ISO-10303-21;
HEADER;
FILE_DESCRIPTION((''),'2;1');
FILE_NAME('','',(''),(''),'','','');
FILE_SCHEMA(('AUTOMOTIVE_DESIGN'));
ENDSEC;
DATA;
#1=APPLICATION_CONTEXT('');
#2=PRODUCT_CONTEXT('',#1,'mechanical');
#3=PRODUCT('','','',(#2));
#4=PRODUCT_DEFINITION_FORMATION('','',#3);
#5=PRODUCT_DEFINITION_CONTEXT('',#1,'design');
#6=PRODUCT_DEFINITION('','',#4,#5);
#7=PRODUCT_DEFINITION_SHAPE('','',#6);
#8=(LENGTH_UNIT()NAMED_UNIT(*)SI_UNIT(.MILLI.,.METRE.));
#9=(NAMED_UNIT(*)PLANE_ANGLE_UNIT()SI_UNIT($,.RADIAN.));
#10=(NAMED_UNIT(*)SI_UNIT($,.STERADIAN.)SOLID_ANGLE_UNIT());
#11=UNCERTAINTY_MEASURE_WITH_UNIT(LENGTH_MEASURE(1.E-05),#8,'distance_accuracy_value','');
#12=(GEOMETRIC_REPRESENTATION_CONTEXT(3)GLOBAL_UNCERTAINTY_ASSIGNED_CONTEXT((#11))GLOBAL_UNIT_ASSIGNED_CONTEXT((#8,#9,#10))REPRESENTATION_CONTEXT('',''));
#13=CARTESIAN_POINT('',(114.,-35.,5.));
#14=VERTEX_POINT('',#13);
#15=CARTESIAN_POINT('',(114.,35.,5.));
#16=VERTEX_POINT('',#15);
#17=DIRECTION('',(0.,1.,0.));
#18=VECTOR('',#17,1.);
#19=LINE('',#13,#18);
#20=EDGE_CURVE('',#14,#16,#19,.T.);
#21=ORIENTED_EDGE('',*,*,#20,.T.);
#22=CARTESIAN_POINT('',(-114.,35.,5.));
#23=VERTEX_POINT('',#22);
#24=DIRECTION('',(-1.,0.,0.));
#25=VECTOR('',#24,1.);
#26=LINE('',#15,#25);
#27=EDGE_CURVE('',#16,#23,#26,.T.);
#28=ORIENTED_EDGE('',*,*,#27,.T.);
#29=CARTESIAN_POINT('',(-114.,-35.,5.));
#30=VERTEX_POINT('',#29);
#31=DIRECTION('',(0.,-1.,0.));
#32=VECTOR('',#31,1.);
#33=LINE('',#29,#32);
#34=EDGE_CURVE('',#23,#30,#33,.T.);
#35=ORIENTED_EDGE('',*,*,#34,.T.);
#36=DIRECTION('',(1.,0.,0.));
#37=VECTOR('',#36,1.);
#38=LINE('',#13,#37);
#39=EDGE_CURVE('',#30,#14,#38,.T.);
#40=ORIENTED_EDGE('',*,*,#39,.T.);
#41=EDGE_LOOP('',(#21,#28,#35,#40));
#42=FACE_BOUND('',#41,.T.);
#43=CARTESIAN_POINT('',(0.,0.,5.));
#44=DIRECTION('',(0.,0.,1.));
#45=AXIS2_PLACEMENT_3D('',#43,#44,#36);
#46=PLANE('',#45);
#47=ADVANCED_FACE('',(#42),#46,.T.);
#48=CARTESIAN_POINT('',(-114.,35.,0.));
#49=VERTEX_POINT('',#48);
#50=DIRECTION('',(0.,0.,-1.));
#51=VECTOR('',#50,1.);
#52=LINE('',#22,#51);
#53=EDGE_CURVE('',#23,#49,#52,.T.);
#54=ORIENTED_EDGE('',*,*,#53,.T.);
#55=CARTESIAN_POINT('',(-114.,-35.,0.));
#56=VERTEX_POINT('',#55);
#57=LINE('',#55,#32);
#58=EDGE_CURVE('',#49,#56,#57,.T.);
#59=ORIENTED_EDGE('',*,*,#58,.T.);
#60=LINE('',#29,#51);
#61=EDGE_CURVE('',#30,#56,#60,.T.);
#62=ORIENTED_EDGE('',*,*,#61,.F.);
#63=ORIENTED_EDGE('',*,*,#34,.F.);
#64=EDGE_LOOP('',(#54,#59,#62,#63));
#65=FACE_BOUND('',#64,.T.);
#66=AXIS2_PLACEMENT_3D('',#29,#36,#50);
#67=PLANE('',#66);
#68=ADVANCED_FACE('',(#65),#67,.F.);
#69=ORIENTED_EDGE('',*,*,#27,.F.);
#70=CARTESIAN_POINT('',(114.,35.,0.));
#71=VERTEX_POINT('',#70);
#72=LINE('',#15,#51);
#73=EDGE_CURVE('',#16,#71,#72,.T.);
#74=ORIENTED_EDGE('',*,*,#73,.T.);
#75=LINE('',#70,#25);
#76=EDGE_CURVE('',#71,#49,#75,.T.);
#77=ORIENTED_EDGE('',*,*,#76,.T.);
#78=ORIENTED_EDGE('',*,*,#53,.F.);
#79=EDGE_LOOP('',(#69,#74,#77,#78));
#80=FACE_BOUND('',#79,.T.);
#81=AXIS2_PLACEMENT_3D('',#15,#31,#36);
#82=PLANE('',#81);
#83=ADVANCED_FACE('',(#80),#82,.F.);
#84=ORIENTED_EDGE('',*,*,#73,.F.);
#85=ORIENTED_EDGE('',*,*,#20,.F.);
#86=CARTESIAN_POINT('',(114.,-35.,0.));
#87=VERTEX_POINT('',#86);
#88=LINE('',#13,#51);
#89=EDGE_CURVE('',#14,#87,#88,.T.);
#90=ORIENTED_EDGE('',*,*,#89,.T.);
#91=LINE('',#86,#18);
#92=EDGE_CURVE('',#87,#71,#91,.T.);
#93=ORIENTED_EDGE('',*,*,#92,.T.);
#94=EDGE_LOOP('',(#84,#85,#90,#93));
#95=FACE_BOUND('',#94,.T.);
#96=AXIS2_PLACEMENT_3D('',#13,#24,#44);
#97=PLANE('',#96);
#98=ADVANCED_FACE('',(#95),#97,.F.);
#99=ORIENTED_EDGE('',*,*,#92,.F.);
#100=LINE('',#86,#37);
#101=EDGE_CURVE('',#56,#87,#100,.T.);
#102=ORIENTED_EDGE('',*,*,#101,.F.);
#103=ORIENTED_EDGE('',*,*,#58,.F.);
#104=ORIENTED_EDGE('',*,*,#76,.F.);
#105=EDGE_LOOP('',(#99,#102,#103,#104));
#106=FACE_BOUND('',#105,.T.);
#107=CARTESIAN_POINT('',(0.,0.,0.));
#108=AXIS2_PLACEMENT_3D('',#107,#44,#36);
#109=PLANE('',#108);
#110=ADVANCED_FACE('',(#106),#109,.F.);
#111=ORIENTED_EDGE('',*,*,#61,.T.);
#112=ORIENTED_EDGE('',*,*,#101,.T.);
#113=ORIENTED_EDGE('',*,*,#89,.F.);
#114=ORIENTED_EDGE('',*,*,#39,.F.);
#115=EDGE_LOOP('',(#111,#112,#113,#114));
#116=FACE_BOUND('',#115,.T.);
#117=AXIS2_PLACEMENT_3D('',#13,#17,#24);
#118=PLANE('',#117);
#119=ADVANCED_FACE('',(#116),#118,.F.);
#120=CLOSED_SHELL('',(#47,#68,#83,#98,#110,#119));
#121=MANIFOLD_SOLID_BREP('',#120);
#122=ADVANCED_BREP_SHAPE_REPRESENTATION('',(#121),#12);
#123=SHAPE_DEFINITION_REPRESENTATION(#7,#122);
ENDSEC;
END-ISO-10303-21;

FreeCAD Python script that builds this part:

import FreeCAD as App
import Part
import Sketcher

doc = App.newDocument("Part")
body = doc.addObject("PartDesign::Body", "Body")

# Sketch on XY plane
sketch1 = doc.addObject("Sketcher::SketchObject", "Sketch")
body.addObject(sketch1)
sketch1.AttachmentSupport = (doc.XY_Plane, [""])
sketch1.MapMode = "FlatFace"
sketch1.addGeometry(Part.LineSegment(App.Vector(-114, 35, 0), App.Vector(-114, -35, 0)), False)
sketch1.addGeometry(Part.LineSegment(App.Vector(-114, -35, 0), App.Vector(114, -35, 0)), False)
sketch1.addGeometry(Part.LineSegment(App.Vector(114, -35, 0), App.Vector(114, 35, 0)), False)
sketch1.addGeometry(Part.LineSegment(App.Vector(114, 35, 0), App.Vector(-114, 35, 0)), False)
sketch1.addConstraint(Sketcher.Constraint("Coincident", 0, 2, 1, 1))
sketch1.addConstraint(Sketcher.Constraint("Coincident", 1, 2, 2, 1))
sketch1.addConstraint(Sketcher.Constraint("Coincident", 2, 2, 3, 1))
sketch1.addConstraint(Sketcher.Constraint("Coincident", 3, 2, 0, 1))
sketch1.addConstraint(Sketcher.Constraint("Vertical", 0))
sketch1.addConstraint(Sketcher.Constraint("Horizontal", 1))
sketch1.addConstraint(Sketcher.Constraint("Vertical", 2))
sketch1.addConstraint(Sketcher.Constraint("Horizontal", 3))
sketch1.addConstraint(Sketcher.Constraint("Symmetric", 0, 2, 2, 2, -1, 1))
sketch1.addConstraint(Sketcher.Constraint("DistanceX", 1, 1, 1, 2, 228.0))
sketch1.addConstraint(Sketcher.Constraint("DistanceY", 0, 2, 0, 1, 70.0))
pad1 = doc.addObject("PartDesign::Pad", "Pad")
body.addObject(pad1)
pad1.Profile = sketch1
pad1.Length = 5

doc.recompute()
